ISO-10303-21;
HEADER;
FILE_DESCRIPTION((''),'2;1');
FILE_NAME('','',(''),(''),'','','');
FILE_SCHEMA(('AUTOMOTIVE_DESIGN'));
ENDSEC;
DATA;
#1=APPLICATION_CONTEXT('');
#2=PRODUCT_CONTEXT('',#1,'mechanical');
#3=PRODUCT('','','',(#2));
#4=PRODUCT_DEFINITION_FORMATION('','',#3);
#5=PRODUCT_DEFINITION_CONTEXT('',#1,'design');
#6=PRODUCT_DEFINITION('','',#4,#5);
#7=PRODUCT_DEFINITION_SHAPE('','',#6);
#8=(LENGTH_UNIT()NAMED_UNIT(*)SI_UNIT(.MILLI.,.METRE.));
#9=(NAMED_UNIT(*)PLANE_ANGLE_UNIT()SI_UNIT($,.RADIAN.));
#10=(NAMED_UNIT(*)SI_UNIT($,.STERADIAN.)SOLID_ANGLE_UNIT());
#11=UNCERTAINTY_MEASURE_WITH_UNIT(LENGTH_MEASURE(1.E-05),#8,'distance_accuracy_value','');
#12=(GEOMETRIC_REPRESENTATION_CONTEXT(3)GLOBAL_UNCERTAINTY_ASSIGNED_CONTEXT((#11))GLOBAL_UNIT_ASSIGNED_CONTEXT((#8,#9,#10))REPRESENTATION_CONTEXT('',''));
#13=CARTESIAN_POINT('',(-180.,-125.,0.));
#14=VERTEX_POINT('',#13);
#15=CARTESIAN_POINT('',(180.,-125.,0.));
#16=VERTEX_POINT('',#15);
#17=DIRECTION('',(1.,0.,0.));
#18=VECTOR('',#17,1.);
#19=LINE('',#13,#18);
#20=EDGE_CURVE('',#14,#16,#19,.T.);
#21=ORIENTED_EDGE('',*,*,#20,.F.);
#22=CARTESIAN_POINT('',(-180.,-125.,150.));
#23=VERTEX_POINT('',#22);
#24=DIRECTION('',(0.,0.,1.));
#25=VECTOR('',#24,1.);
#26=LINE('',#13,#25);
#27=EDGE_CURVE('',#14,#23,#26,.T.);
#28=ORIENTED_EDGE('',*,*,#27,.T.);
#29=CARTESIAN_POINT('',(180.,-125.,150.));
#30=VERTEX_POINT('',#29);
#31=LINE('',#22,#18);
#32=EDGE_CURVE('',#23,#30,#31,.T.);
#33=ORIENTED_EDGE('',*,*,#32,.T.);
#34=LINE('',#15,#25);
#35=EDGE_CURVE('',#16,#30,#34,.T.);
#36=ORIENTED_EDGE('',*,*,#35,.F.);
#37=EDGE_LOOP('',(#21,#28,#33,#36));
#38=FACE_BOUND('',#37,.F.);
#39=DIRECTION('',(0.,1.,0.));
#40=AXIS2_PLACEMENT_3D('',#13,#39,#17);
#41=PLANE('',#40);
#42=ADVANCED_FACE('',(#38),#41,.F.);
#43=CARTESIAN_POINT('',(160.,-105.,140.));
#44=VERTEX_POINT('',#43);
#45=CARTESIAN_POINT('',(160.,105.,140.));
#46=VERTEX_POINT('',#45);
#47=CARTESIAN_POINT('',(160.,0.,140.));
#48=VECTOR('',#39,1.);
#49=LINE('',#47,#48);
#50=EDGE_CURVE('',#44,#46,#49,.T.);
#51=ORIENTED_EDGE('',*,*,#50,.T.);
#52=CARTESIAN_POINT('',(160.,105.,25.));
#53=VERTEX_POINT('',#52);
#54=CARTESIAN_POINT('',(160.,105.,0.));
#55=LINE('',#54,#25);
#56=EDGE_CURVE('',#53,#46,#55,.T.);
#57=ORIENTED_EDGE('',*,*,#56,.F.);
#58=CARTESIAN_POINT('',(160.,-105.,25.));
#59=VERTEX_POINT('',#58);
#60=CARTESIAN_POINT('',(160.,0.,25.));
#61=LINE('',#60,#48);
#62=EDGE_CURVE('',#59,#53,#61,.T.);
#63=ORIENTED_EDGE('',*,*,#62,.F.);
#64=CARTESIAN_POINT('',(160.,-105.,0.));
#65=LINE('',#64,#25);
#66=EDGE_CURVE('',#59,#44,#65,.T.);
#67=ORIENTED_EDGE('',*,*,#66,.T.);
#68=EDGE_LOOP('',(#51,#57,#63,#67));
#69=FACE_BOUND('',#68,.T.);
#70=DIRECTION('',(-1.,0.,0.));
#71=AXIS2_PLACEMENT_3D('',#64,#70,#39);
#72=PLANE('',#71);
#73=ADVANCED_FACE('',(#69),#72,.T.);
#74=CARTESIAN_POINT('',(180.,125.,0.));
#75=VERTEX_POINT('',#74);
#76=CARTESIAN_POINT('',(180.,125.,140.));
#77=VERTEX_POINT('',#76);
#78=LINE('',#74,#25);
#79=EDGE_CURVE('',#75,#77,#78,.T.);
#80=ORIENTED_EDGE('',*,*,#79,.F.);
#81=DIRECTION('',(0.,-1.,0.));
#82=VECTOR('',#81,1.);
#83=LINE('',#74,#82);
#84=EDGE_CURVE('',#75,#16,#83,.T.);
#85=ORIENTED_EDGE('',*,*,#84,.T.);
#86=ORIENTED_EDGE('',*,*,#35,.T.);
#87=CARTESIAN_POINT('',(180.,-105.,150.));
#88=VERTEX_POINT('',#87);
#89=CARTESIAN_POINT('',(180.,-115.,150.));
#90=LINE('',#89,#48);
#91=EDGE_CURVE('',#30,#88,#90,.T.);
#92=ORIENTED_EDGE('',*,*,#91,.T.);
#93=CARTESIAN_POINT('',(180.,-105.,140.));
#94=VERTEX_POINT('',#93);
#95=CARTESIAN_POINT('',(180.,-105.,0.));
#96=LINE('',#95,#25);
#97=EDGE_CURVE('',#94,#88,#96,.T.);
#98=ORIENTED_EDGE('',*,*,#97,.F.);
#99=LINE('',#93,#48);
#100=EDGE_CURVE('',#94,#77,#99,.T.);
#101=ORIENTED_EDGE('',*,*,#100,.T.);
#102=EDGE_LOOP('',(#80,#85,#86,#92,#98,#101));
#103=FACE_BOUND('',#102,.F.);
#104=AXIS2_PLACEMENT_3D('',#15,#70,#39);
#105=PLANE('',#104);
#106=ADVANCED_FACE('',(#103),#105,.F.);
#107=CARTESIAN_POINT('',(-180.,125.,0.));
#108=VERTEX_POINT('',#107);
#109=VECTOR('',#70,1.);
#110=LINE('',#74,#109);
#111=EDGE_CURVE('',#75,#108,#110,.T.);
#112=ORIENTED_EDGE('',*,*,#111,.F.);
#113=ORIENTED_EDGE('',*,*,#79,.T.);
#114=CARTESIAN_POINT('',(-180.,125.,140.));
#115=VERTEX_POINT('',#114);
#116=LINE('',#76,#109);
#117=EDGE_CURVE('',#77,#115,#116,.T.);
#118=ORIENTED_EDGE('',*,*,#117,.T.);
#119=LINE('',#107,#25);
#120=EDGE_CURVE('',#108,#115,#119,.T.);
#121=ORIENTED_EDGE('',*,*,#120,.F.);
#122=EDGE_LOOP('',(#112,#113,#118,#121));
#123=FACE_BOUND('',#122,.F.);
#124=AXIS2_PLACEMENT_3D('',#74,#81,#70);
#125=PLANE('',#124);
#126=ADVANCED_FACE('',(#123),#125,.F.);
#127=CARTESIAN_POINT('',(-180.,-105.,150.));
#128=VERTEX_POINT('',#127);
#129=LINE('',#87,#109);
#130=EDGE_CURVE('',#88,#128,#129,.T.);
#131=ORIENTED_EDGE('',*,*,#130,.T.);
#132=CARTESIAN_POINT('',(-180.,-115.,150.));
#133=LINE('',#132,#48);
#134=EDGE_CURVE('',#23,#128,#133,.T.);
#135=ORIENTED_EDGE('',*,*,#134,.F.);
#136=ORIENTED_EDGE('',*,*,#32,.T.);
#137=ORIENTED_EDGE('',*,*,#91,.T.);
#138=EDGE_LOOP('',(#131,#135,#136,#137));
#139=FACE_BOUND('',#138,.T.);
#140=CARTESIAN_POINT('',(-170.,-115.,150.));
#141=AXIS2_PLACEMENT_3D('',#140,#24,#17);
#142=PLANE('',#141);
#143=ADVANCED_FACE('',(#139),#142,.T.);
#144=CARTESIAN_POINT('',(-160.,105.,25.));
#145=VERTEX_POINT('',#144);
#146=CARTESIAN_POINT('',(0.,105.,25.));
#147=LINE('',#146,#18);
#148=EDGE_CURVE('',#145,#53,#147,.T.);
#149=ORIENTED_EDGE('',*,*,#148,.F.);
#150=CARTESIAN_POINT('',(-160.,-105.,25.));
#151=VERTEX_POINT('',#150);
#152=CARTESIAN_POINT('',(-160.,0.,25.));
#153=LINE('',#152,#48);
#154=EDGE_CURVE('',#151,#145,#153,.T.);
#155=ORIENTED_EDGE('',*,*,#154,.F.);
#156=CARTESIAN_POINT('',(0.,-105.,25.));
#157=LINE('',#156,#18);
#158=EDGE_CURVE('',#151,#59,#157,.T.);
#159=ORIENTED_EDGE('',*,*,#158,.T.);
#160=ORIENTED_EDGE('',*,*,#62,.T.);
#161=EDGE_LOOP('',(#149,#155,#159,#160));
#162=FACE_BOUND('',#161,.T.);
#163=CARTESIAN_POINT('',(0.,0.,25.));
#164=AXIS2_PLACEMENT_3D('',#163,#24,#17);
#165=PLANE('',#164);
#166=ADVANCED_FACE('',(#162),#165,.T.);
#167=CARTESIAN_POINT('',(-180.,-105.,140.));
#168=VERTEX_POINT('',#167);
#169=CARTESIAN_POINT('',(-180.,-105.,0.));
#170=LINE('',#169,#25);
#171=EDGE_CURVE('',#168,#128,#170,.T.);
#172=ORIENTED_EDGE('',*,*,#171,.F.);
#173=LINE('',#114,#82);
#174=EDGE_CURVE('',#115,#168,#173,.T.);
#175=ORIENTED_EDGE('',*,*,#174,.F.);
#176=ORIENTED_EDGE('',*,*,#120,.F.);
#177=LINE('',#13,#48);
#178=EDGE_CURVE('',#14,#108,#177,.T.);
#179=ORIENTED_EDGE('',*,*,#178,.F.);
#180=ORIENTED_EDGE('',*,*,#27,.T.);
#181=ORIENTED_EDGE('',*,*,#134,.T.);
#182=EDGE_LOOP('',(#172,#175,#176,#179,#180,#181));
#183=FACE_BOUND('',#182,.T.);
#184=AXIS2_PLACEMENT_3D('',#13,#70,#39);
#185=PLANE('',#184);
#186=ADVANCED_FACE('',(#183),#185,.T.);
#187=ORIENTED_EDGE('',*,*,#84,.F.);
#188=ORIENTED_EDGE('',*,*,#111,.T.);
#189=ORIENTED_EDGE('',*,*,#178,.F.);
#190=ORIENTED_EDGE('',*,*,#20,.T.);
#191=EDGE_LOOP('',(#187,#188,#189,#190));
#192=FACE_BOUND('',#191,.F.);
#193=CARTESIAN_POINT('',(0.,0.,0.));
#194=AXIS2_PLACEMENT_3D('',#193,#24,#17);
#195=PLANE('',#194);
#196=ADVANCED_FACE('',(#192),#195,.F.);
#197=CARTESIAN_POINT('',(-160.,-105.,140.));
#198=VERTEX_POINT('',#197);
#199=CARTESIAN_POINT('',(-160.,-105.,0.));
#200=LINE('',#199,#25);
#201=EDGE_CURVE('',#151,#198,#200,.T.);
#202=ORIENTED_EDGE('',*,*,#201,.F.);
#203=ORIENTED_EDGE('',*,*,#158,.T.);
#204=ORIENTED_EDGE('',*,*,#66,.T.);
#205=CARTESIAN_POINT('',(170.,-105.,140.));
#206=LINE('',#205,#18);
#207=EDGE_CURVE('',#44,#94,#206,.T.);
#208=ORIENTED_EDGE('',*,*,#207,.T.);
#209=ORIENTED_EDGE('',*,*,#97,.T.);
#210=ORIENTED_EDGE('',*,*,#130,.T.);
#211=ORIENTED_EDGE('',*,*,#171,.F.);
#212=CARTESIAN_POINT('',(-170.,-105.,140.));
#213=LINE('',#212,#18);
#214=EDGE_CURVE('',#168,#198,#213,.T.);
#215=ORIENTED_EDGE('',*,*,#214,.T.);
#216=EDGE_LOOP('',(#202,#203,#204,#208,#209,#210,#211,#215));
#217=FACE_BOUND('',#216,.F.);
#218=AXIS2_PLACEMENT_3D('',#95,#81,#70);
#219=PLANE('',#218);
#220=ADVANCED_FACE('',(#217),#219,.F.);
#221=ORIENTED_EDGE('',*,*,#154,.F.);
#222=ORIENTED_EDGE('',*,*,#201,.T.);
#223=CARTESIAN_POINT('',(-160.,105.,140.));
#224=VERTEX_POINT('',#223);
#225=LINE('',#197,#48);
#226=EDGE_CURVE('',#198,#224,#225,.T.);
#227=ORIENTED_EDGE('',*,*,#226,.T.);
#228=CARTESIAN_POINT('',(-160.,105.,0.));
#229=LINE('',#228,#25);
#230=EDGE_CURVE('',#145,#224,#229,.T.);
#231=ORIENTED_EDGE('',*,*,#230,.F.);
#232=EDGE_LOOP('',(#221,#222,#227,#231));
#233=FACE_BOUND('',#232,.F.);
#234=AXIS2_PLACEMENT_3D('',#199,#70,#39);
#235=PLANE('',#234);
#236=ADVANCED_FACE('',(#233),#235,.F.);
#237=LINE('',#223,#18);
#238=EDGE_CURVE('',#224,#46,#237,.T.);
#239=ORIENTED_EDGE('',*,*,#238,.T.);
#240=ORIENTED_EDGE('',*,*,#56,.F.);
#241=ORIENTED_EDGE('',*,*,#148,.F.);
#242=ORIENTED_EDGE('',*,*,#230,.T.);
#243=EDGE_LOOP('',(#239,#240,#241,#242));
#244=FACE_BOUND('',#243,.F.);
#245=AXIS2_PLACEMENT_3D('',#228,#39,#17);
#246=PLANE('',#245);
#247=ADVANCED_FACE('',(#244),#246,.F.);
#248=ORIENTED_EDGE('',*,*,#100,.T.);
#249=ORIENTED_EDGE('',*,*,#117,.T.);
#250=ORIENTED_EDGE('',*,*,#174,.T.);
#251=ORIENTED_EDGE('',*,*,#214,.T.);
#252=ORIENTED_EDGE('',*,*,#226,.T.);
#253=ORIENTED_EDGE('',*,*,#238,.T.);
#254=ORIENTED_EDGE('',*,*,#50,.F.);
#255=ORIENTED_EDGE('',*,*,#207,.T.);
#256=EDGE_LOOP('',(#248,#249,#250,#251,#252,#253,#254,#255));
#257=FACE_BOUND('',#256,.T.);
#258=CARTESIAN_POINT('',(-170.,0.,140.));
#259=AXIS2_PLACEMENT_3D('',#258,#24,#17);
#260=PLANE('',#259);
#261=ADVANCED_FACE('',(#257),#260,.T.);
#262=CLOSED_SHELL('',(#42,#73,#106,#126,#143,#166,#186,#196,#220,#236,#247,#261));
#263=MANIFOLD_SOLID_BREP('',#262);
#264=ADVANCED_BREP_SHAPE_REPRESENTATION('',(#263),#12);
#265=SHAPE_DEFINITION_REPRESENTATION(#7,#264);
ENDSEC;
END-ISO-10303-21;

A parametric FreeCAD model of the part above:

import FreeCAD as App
import Part
import Sketcher
from FreeCAD import Vector
Q = App.Units.Quantity

doc = App.newDocument("Part")
body = doc.addObject("PartDesign::Body", "Body")

sketch1 = body.newObject("Sketcher::SketchObject", "Sketch")
sketch1.AttachmentSupport = (doc.getObject("XY_Plane"), [""])
sketch1.MapMode = "FlatFace"
sketch1.addGeometry([
    Part.LineSegment(Vector(-180, -105, 0), Vector(-180, -125, 0)),
    Part.LineSegment(Vector(-180, -125, 0), Vector(180, -125, 0)),
    Part.LineSegment(Vector(180, -125, 0), Vector(180, -105, 0)),
    Part.LineSegment(Vector(180, -105, 0), Vector(-180, -105, 0)),
], False)
sketch1.addConstraint([
    Sketcher.Constraint("Coincident", 0, 2, 1, 1),
    Sketcher.Constraint("Coincident", 1, 2, 2, 1),
    Sketcher.Constraint("Coincident", 2, 2, 3, 1),
    Sketcher.Constraint("Coincident", 3, 2, 0, 1),
    Sketcher.Constraint("Vertical", 0),
    Sketcher.Constraint("Horizontal", 1),
    Sketcher.Constraint("Vertical", 2),
    Sketcher.Constraint("Horizontal", 3),
    Sketcher.Constraint("DistanceX", 1, 1, 1, 2, Q("360 mm")),
    Sketcher.Constraint("DistanceY", 0, 2, 0, 1, Q("20 mm")),
    Sketcher.Constraint("DistanceX", 0, 2, -1, 1, Q("180 mm")),
    Sketcher.Constraint("DistanceY", 0, 2, -1, 1, Q("125 mm")),
])
pad1 = body.newObject("PartDesign::Pad", "Pad")
pad1.Profile = sketch1
pad1.Length = 150

sketch2 = body.newObject("Sketcher::SketchObject", "Sketch001")
sketch2.AttachmentSupport = (doc.getObject("XY_Plane"), [""])
sketch2.MapMode = "FlatFace"
sketch2.addGeometry([
    Part.LineSegment(Vector(-180, -105, 0), Vector(-160, -105, 0)),
    Part.LineSegment(Vector(-160, -105, 0), Vector(-160, 105, 0)),
    Part.LineSegment(Vector(-160, 105, 0), Vector(160, 105, 0)),
    Part.LineSegment(Vector(160, 105, 0), Vector(160, -105, 0)),
    Part.LineSegment(Vector(160, -105, 0), Vector(180, -105, 0)),
    Part.LineSegment(Vector(180, -105, 0), Vector(180, 125, 0)),
    Part.LineSegment(Vector(180, 125, 0), Vector(-180, 125, 0)),
    Part.LineSegment(Vector(-180, 125, 0), Vector(-180, -105, 0)),
], False)
sketch2.addConstraint([
    Sketcher.Constraint("Coincident", 0, 2, 1, 1),
    Sketcher.Constraint("Coincident", 1, 2, 2, 1),
    Sketcher.Constraint("Coincident", 2, 2, 3, 1),
    Sketcher.Constraint("Coincident", 3, 2, 4, 1),
    Sketcher.Constraint("Coincident", 4, 2, 5, 1),
    Sketcher.Constraint("Coincident", 5, 2, 6, 1),
    Sketcher.Constraint("Coincident", 6, 2, 7, 1),
    Sketcher.Constraint("Coincident", 7, 2, 0, 1),
    Sketcher.Constraint("Horizontal", 0),
    Sketcher.Constraint("Vertical", 1),
    Sketcher.Constraint("Horizontal", 2),
    Sketcher.Constraint("Vertical", 3),
    Sketcher.Constraint("Horizontal", 4),
    Sketcher.Constraint("Vertical", 5),
    Sketcher.Constraint("Horizontal", 6),
    Sketcher.Constraint("Vertical", 7),
    Sketcher.Constraint("Symmetric", 0, 2, 2, 2, -1, 1),
    Sketcher.Constraint("Symmetric", 4, 2, 7, 2, -2),
    Sketcher.Constraint("DistanceX", 0, 1, 0, 2, Q("20 mm")),
    Sketcher.Constraint("DistanceX", 2, 1, 2, 2, Q("320 mm")),
    Sketcher.Constraint("DistanceY", 1, 1, 1, 2, Q("210 mm")),
    Sketcher.Constraint("DistanceY", 5, 1, 5, 2, Q("230 mm")),
])
pad2 = body.newObject("PartDesign::Pad", "Pad001")
pad2.Profile = sketch2
pad2.Length = 140

sketch3 = body.newObject("Sketcher::SketchObject", "Sketch002")
sketch3.AttachmentSupport = (doc.getObject("XY_Plane"), [""])
sketch3.MapMode = "FlatFace"
sketch3.addGeometry([
    Part.LineSegment(Vector(-160, 105, 0), Vector(-160, -105, 0)),
    Part.LineSegment(Vector(-160, -105, 0), Vector(160, -105, 0)),
    Part.LineSegment(Vector(160, -105, 0), Vector(160, 105, 0)),
    Part.LineSegment(Vector(160, 105, 0), Vector(-160, 105, 0)),
], False)
sketch3.addConstraint([
    Sketcher.Constraint("Coincident", 0, 2, 1, 1),
    Sketcher.Constraint("Coincident", 1, 2, 2, 1),
    Sketcher.Constraint("Coincident", 2, 2, 3, 1),
    Sketcher.Constraint("Coincident", 3, 2, 0, 1),
    Sketcher.Constraint("Vertical", 0),
    Sketcher.Constraint("Horizontal", 1),
    Sketcher.Constraint("Vertical", 2),
    Sketcher.Constraint("Horizontal", 3),
    Sketcher.Constraint("Symmetric", 0, 2, 2, 2, -1, 1),
    Sketcher.Constraint("DistanceX", 1, 1, 1, 2, Q("320 mm")),
    Sketcher.Constraint("DistanceY", 0, 2, 0, 1, Q("210 mm")),
])
pad3 = body.newObject("PartDesign::Pad", "Pad002")
pad3.Profile = sketch3
pad3.Length = 25

doc.recompute()
